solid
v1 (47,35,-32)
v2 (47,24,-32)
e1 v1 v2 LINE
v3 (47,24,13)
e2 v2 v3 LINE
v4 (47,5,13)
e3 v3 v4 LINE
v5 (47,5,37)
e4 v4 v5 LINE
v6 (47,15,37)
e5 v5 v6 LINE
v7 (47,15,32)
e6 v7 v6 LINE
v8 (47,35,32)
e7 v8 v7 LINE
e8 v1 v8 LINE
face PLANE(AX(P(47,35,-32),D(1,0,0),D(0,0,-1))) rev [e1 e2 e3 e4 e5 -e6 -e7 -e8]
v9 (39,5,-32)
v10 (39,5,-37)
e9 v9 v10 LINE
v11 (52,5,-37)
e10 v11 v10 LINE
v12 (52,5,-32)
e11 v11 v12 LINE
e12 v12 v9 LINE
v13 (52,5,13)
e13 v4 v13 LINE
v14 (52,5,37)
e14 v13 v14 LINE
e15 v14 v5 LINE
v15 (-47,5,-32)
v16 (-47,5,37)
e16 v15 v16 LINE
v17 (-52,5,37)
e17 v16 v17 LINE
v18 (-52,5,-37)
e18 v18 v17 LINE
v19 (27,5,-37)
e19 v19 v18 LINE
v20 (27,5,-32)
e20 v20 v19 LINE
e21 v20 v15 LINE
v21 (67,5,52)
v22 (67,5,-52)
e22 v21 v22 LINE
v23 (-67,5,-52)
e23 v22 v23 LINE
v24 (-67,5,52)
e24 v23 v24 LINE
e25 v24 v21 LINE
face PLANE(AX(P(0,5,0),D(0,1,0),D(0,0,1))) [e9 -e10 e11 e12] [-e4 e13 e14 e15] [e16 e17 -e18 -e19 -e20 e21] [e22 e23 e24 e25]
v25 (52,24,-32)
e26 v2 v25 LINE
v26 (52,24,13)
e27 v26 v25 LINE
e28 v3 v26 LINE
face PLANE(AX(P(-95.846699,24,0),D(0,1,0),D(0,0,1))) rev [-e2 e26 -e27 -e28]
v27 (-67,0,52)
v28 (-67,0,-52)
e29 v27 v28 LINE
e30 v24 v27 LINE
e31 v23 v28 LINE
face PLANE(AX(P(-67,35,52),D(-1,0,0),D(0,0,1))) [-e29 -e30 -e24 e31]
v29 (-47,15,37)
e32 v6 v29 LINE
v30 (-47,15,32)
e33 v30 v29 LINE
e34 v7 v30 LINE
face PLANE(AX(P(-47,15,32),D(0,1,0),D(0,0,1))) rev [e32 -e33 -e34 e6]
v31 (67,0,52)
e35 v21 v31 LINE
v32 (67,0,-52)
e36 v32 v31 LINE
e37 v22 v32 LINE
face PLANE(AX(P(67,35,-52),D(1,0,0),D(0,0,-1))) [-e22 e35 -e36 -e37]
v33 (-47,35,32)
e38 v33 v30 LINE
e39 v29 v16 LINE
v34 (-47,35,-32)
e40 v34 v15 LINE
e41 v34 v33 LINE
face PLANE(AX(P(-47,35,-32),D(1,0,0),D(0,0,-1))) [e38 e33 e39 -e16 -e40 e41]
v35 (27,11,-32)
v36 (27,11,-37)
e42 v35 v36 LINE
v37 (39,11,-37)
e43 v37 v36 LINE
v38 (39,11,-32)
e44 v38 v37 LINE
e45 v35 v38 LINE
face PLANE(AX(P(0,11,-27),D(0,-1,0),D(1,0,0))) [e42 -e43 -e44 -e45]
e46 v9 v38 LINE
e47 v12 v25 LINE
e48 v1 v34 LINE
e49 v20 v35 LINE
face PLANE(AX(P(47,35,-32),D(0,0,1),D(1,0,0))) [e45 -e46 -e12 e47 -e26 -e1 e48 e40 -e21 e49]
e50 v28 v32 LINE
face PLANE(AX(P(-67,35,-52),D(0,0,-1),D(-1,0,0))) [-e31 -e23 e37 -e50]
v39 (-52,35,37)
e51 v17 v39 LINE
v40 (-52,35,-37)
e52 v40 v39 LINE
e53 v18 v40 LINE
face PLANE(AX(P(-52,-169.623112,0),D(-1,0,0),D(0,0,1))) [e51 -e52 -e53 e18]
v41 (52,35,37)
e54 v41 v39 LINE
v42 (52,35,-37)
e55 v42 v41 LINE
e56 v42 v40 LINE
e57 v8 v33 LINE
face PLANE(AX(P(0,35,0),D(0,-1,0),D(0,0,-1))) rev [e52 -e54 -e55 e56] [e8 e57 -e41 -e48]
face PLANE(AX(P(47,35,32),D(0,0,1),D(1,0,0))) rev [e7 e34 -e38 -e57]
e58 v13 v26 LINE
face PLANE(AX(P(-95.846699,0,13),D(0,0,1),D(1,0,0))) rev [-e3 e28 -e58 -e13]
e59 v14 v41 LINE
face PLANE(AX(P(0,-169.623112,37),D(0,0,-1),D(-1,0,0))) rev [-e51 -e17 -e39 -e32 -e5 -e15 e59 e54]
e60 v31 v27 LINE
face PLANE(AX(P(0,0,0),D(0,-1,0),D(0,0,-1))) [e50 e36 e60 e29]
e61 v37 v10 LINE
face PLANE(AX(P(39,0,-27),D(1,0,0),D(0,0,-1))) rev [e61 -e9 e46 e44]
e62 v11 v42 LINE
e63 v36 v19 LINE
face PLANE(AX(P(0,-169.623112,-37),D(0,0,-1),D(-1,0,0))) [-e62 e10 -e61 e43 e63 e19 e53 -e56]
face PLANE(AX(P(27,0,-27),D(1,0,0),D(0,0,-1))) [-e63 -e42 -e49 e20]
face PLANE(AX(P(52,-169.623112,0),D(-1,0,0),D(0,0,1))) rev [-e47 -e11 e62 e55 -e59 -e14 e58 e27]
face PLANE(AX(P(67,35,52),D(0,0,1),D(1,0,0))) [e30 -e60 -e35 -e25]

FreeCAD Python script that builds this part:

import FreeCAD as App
import Part
import Sketcher
from FreeCAD import Vector
Q = App.Units.Quantity

doc = App.newDocument("Part")
body = doc.addObject("PartDesign::Body", "Body")

# Sketch on XZ plane
sketch1 = body.newObject("Sketcher::SketchObject", "Sketch")
sketch1.AttachmentSupport = (doc.getObject("XZ_Plane"), [""])
sketch1.MapMode = "FlatFace"
sketch1.addGeometry(Part.LineSegment(Vector(-67, -52, 0), Vector(-67, 52, 0)), False)
sketch1.addGeometry(Part.LineSegment(Vector(-67, 52, 0), Vector(67, 52, 0)), False)
sketch1.addGeometry(Part.LineSegment(Vector(67, 52, 0), Vector(67, -52, 0)), False)
sketch1.addGeometry(Part.LineSegment(Vector(67, -52, 0), Vector(-67, -52, 0)), False)
sketch1.addGeometry(Part.LineSegment(Vector(47, 32, 0), Vector(-47, 32, 0)), False)
sketch1.addGeometry(Part.LineSegment(Vector(-47, 32, 0), Vector(-47, -32, 0)), False)
sketch1.addGeometry(Part.LineSegment(Vector(-47, -32, 0), Vector(47, -32, 0)), False)
sketch1.addGeometry(Part.LineSegment(Vector(47, -32, 0), Vector(47, 32, 0)), False)
sketch1.addConstraint(Sketcher.Constraint("Coincident", 0, 2, 1, 1))
sketch1.addConstraint(Sketcher.Constraint("Coincident", 1, 2, 2, 1))
sketch1.addConstraint(Sketcher.Constraint("Coincident", 2, 2, 3, 1))
sketch1.addConstraint(Sketcher.Constraint("Coincident", 3, 2, 0, 1))
sketch1.addConstraint(Sketcher.Constraint("Coincident", 4, 2, 5, 1))
sketch1.addConstraint(Sketcher.Constraint("Coincident", 5, 2, 6, 1))
sketch1.addConstraint(Sketcher.Constraint("Coincident", 6, 2, 7, 1))
sketch1.addConstraint(Sketcher.Constraint("Coincident", 7, 2, 4, 1))
sketch1.addConstraint(Sketcher.Constraint("Vertical", 0))
sketch1.addConstraint(Sketcher.Constraint("Horizontal", 1))
sketch1.addConstraint(Sketcher.Constraint("Vertical", 2))
sketch1.addConstraint(Sketcher.Constraint("Horizontal", 3))
sketch1.addConstraint(Sketcher.Constraint("Horizontal", 4))
sketch1.addConstraint(Sketcher.Constraint("Vertical", 5))
sketch1.addConstraint(Sketcher.Constraint("Horizontal", 6))
sketch1.addConstraint(Sketcher.Constraint("Vertical", 7))
sketch1.addConstraint(Sketcher.Constraint("Symmetric", 0, 2, 2, 2, -1, 1))
sketch1.addConstraint(Sketcher.Constraint("Symmetric", 4, 2, 6, 2, -1, 1))
sketch1.addConstraint(Sketcher.Constraint("DistanceX", 1, 1, 1, 2, Q("134 mm")))
sketch1.addConstraint(Sketcher.Constraint("DistanceX", 4, 2, 4, 1, Q("94 mm")))
sketch1.addConstraint(Sketcher.Constraint("DistanceY", 0, 1, 0, 2, Q("104 mm")))
sketch1.addConstraint(Sketcher.Constraint("DistanceY", 5, 2, 5, 1, Q("64 mm")))
pad1 = body.newObject("PartDesign::Pad", "Pad")
pad1.Profile = sketch1
pad1.Length = 35
pad1.Reversed = True

# Sketch on XZ plane
sketch2 = body.newObject("Sketcher::SketchObject", "Sketch001")
sketch2.AttachmentSupport = (doc.getObject("XZ_Plane"), [""])
sketch2.MapMode = "FlatFace"
sketch2.addGeometry(Part.LineSegment(Vector(-47, -32, 0), Vector(-47, 32, 0)), False)
sketch2.addGeometry(Part.LineSegment(Vector(-47, 32, 0), Vector(47, 32, 0)), False)
sketch2.addGeometry(Part.LineSegment(Vector(47, 32, 0), Vector(47, -32, 0)), False)
sketch2.addGeometry(Part.LineSegment(Vector(47, -32, 0), Vector(-47, -32, 0)), False)
sketch2.addConstraint(Sketcher.Constraint("Coincident", 0, 2, 1, 1))
sketch2.addConstraint(Sketcher.Constraint("Coincident", 1, 2, 2, 1))
sketch2.addConstraint(Sketcher.Constraint("Coincident", 2, 2, 3, 1))
sketch2.addConstraint(Sketcher.Constraint("Coincident", 3, 2, 0, 1))
sketch2.addConstraint(Sketcher.Constraint("Vertical", 0))
sketch2.addConstraint(Sketcher.Constraint("Horizontal", 1))
sketch2.addConstraint(Sketcher.Constraint("Vertical", 2))
sketch2.addConstraint(Sketcher.Constraint("Horizontal", 3))
sketch2.addConstraint(Sketcher.Constraint("Symmetric", 0, 2, 2, 2, -1, 1))
sketch2.addConstraint(Sketcher.Constraint("DistanceX", 1, 1, 1, 2, Q("94 mm")))
sketch2.addConstraint(Sketcher.Constraint("DistanceY", 0, 1, 0, 2, Q("64 mm")))
pad2 = body.newObject("PartDesign::Pad", "Pad001")
pad2.Profile = sketch2
pad2.Length = 5
pad2.Reversed = True

# Sketch on XZ plane
sketch3 = body.newObject("Sketcher::SketchObject", "Sketch002")
sketch3.AttachmentSupport = (doc.getObject("XZ_Plane"), [""])
sketch3.MapMode = "FlatFace"
sketch3.AttachmentOffset = App.Placement(Vector(0, 0, -35), App.Rotation())
sketch3.addGeometry(Part.LineSegment(Vector(-67, -52, 0), Vector(-67, 52, 0)), False)
sketch3.addGeometry(Part.LineSegment(Vector(-67, 52, 0), Vector(67, 52, 0)), False)
sketch3.addGeometry(Part.LineSegment(Vector(67, 52, 0), Vector(67, -52, 0)), False)
sketch3.addGeometry(Part.LineSegment(Vector(67, -52, 0), Vector(-67, -52, 0)), False)
sketch3.addGeometry(Part.LineSegment(Vector(52, 37, 0), Vector(-52, 37, 0)), False)
sketch3.addGeometry(Part.LineSegment(Vector(-52, 37, 0), Vector(-52, -37, 0)), False)
sketch3.addGeometry(Part.LineSegment(Vector(-52, -37, 0), Vector(52, -37, 0)), False)
sketch3.addGeometry(Part.LineSegment(Vector(52, -37, 0), Vector(52, 37, 0)), False)
sketch3.addConstraint(Sketcher.Constraint("Coincident", 0, 2, 1, 1))
sketch3.addConstraint(Sketcher.Constraint("Coincident", 1, 2, 2, 1))
sketch3.addConstraint(Sketcher.Constraint("Coincident", 2, 2, 3, 1))
sketch3.addConstraint(Sketcher.Constraint("Coincident", 3, 2, 0, 1))
sketch3.addConstraint(Sketcher.Constraint("Coincident", 4, 2, 5, 1))
sketch3.addConstraint(Sketcher.Constraint("Coincident", 5, 2, 6, 1))
sketch3.addConstraint(Sketcher.Constraint("Coincident", 6, 2, 7, 1))
sketch3.addConstraint(Sketcher.Constraint("Coincident", 7, 2, 4, 1))
sketch3.addConstraint(Sketcher.Constraint("Vertical", 0))
sketch3.addConstraint(Sketcher.Constraint("Horizontal", 1))
sketch3.addConstraint(Sketcher.Constraint("Vertical", 2))
sketch3.addConstraint(Sketcher.Constraint("Horizontal", 3))
sketch3.addConstraint(Sketcher.Constraint("Horizontal", 4))
sketch3.addConstraint(Sketcher.Constraint("Vertical", 5))
sketch3.addConstraint(Sketcher.Constraint("Horizontal", 6))
sketch3.addConstraint(Sketcher.Constraint("Vertical", 7))
sketch3.addConstraint(Sketcher.Constraint("Symmetric", 0, 2, 2, 2, -1, 1))
sketch3.addConstraint(Sketcher.Constraint("Symmetric", 4, 2, 6, 2, -1, 1))
sketch3.addConstraint(Sketcher.Constraint("Equal", 6, 0))
sketch3.addConstraint(Sketcher.Constraint("DistanceX", 1, 1, 1, 2, Q("134 mm")))
sketch3.addConstraint(Sketcher.Constraint("DistanceX", 4, 2, 4, 1, Q("104 mm")))
sketch3.addConstraint(Sketcher.Constraint("DistanceY", 5, 2, 5, 1, Q("74 mm")))
pocket1 = body.newObject("PartDesign::Pocket", "Pocket")
pocket1.Profile = sketch3
pocket1.Length = 30
pocket1.Reversed = True

# Sketch on YZ plane
sketch4 = body.newObject("Sketcher::SketchObject", "Sketch003")
sketch4.AttachmentSupport = (doc.getObject("YZ_Plane"), [""])
sketch4.MapMode = "FlatFace"
sketch4.AttachmentOffset = App.Placement(Vector(0, 0, 67), App.Rotation())
sketch4.addGeometry(Part.LineSegment(Vector(24, -32, 0), Vector(24, 13, 0)), False)
sketch4.addGeometry(Part.LineSegment(Vector(24, 13, 0), Vector(5, 13, 0)), False)
sketch4.addGeometry(Part.LineSegment(Vector(5, 13, 0), Vector(5, -32, 0)), False)
sketch4.addGeometry(Part.LineSegment(Vector(5, -32, 0), Vector(24, -32, 0)), False)
sketch4.addConstraint(Sketcher.Constraint("Coincident", 0, 2, 1, 1))
sketch4.addConstraint(Sketcher.Constraint("Coincident", 1, 2, 2, 1))
sketch4.addConstraint(Sketcher.Constraint("Coincident", 2, 2, 3, 1))
sketch4.addConstraint(Sketcher.Constraint("Coincident", 3, 2, 0, 1))
sketch4.addConstraint(Sketcher.Constraint("Vertical", 0))
sketch4.addConstraint(Sketcher.Constraint("Horizontal", 1))
sketch4.addConstraint(Sketcher.Constraint("Vertical", 2))
sketch4.addConstraint(Sketcher.Constraint("Horizontal", 3))
sketch4.addConstraint(Sketcher.Constraint("DistanceX", 1, 2, 1, 1, Q("19 mm")))
sketch4.addConstraint(Sketcher.Constraint("DistanceY", 0, 1, 0, 2, Q("45 mm")))
sketch4.addConstraint(Sketcher.Constraint("DistanceX", -1, 1, 0, 2, Q("24 mm")))
sketch4.addConstraint(Sketcher.Constraint("DistanceY", -1, 1, 0, 2, Q("13 mm")))
pocket2 = body.newObject("PartDesign::Pocket", "Pocket001")
pocket2.Profile = sketch4
pocket2.Length = 114

# Sketch on XY plane
sketch5 = body.newObject("Sketcher::SketchObject", "Sketch004")
sketch5.AttachmentSupport = (doc.getObject("XY_Plane"), [""])
sketch5.MapMode = "FlatFace"
sketch5.AttachmentOffset = App.Placement(Vector(0, 0, 37), App.Rotation())
sketch5.addGeometry(Part.LineSegment(Vector(-47, 15, 0), Vector(-47, 5, 0)), False)
sketch5.addGeometry(Part.LineSegment(Vector(-47, 5, 0), Vector(47, 5, 0)), False)
sketch5.addGeometry(Part.LineSegment(Vector(47, 5, 0), Vector(47, 15, 0)), False)
sketch5.addGeometry(Part.LineSegment(Vector(47, 15, 0), Vector(-47, 15, 0)), False)
sketch5.addConstraint(Sketcher.Constraint("Coincident", 0, 2, 1, 1))
sketch5.addConstraint(Sketcher.Constraint("Coincident", 1, 2, 2, 1))
sketch5.addConstraint(Sketcher.Constraint("Coincident", 2, 2, 3, 1))
sketch5.addConstraint(Sketcher.Constraint("Coincident", 3, 2, 0, 1))
sketch5.addConstraint(Sketcher.Constraint("Vertical", 0))
sketch5.addConstraint(Sketcher.Constraint("Horizontal", 1))
sketch5.addConstraint(Sketcher.Constraint("Vertical", 2))
sketch5.addConstraint(Sketcher.Constraint("Horizontal", 3))
sketch5.addConstraint(Sketcher.Constraint("DistanceX", 1, 1, 1, 2, Q("94 mm")))
sketch5.addConstraint(Sketcher.Constraint("DistanceY", 0, 2, 0, 1, Q("10 mm")))
sketch5.addConstraint(Sketcher.Constraint("DistanceX", 0, 2, -1, 1, Q("47 mm")))
sketch5.addConstraint(Sketcher.Constraint("DistanceY", -1, 1, 0, 2, Q("5 mm")))
pocket3 = body.newObject("PartDesign::Pocket", "Pocket002")
pocket3.Profile = sketch5
pocket3.Length = 5

# Sketch on XY plane
sketch6 = body.newObject("Sketcher::SketchObject", "Sketch005")
sketch6.AttachmentSupport = (doc.getObject("XY_Plane"), [""])
sketch6.MapMode = "FlatFace"
sketch6.AttachmentOffset = App.Placement(Vector(0, 0, -37), App.Rotation())
sketch6.addGeometry(Part.LineSegment(Vector(47, 15, 0), Vector(47, 5, 0)), False)
sketch6.addGeometry(Part.LineSegment(Vector(47, 5, 0), Vector(30, 5, 0)), False)
sketch6.addGeometry(Part.LineSegment(Vector(30, 5, 0), Vector(30, 15, 0)), False)
sketch6.addGeometry(Part.LineSegment(Vector(30, 15, 0), Vector(47, 15, 0)), False)
sketch6.addConstraint(Sketcher.Constraint("Coincident", 0, 2, 1, 1))
sketch6.addConstraint(Sketcher.Constraint("Coincident", 1, 2, 2, 1))
sketch6.addConstraint(Sketcher.Constraint("Coincident", 2, 2, 3, 1))
sketch6.addConstraint(Sketcher.Constraint("Coincident", 3, 2, 0, 1))
sketch6.addConstraint(Sketcher.Constraint("Vertical", 0))
sketch6.addConstraint(Sketcher.Constraint("Horizontal", 1))
sketch6.addConstraint(Sketcher.Constraint("Vertical", 2))
sketch6.addConstraint(Sketcher.Constraint("Horizontal", 3))
sketch6.addConstraint(Sketcher.Constraint("DistanceX", 1, 2, 1, 1, Q("17 mm")))
sketch6.addConstraint(Sketcher.Constraint("DistanceY", 0, 2, 0, 1, Q("10 mm")))
sketch6.addConstraint(Sketcher.Constraint("DistanceX", -1, 1, 0, 2, Q("47 mm")))
sketch6.addConstraint(Sketcher.Constraint("DistanceY", -1, 1, 0, 2, Q("5 mm")))
pocket4 = body.newObject("PartDesign::Pocket", "Pocket003")
pocket4.Profile = sketch6
pocket4.Length = 5
pocket4.Reversed = True

# Sketch on XY plane
sketch7 = body.newObject("Sketcher::SketchObject", "Sketch006")
sketch7.AttachmentSupport = (doc.getObject("XY_Plane"), [""])
sketch7.MapMode = "FlatFace"
sketch7.AttachmentOffset = App.Placement(Vector(0, 0, -37), App.Rotation())
sketch7.addGeometry(Part.LineSegment(Vector(48.824668, 17.432282, 0), Vector(48.824668, 5, 0)), False)
sketch7.addGeometry(Part.LineSegment(Vector(48.824668, 5, 0), Vector(19.84137, 5, 0)), False)
sketch7.addGeometry(Part.LineSegment(Vector(19.84137, 5, 0), Vector(19.84137, 17.432282, 0)), False)
sketch7.addGeometry(Part.LineSegment(Vector(19.84137, 17.432282, 0), Vector(48.824668, 17.432282, 0)), False)
sketch7.addConstraint(Sketcher.Constraint("Coincident", 0, 2, 1, 1))
sketch7.addConstraint(Sketcher.Constraint("Coincident", 1, 2, 2, 1))
sketch7.addConstraint(Sketcher.Constraint("Coincident", 2, 2, 3, 1))
sketch7.addConstraint(Sketcher.Constraint("Coincident", 3, 2, 0, 1))
sketch7.addConstraint(Sketcher.Constraint("Vertical", 0))
sketch7.addConstraint(Sketcher.Constraint("Horizontal", 1))
sketch7.addConstraint(Sketcher.Constraint("Vertical", 2))
sketch7.addConstraint(Sketcher.Constraint("Horizontal", 3))
sketch7.addConstraint(Sketcher.Constraint("DistanceY", -1, 1, 0, 2, Q("5 mm")))
sketch7.addConstraint(Sketcher.Constraint("DistanceX", 1, 2, 1, 1, Q("28.983298 mm")))
sketch7.addConstraint(Sketcher.Constraint("DistanceY", 0, 2, 0, 1, Q("12.432282 mm")))
sketch7.addConstraint(Sketcher.Constraint("DistanceX", -1, 1, 0, 2, Q("48.824668 mm")))
pad3 = body.newObject("PartDesign::Pad", "Pad002")
pad3.Profile = sketch7
pad3.Length = 5

# Sketch on XY plane
sketch8 = body.newObject("Sketcher::SketchObject", "Sketch007")
sketch8.AttachmentSupport = (doc.getObject("XY_Plane"), [""])
sketch8.MapMode = "FlatFace"
sketch8.AttachmentOffset = App.Placement(Vector(0, 0, -37), App.Rotation())
sketch8.addGeometry(Part.LineSegment(Vector(39, 11, 0), Vector(39, 5, 0)), False)
sketch8.addGeometry(Part.LineSegment(Vector(39, 5, 0), Vector(27, 5, 0)), False)
sketch8.addGeometry(Part.LineSegment(Vector(27, 5, 0), Vector(27, 11, 0)), False)
sketch8.addGeometry(Part.LineSegment(Vector(27, 11, 0), Vector(39, 11, 0)), False)
sketch8.addConstraint(Sketcher.Constraint("Coincident", 0, 2, 1, 1))
sketch8.addConstraint(Sketcher.Constraint("Coincident", 1, 2, 2, 1))
sketch8.addConstraint(Sketcher.Constraint("Coincident", 2, 2, 3, 1))
sketch8.addConstraint(Sketcher.Constraint("Coincident", 3, 2, 0, 1))
sketch8.addConstraint(Sketcher.Constraint("Vertical", 0))
sketch8.addConstraint(Sketcher.Constraint("Horizontal", 1))
sketch8.addConstraint(Sketcher.Constraint("Vertical", 2))
sketch8.addConstraint(Sketcher.Constraint("Horizontal", 3))
sketch8.addConstraint(Sketcher.Constraint("DistanceX", 1, 2, 1, 1, Q("12 mm")))
sketch8.addConstraint(Sketcher.Constraint("DistanceY", 0, 2, 0, 1, Q("6 mm")))
sketch8.addConstraint(Sketcher.Constraint("DistanceX", -1, 1, 0, 2, Q("39 mm")))
sketch8.addConstraint(Sketcher.Constraint("DistanceY", -1, 1, 0, 2, Q("5 mm")))
pocket5 = body.newObject("PartDesign::Pocket", "Pocket004")
pocket5.Profile = sketch8
pocket5.Length = 10
pocket5.Reversed = True

doc.recompute()
